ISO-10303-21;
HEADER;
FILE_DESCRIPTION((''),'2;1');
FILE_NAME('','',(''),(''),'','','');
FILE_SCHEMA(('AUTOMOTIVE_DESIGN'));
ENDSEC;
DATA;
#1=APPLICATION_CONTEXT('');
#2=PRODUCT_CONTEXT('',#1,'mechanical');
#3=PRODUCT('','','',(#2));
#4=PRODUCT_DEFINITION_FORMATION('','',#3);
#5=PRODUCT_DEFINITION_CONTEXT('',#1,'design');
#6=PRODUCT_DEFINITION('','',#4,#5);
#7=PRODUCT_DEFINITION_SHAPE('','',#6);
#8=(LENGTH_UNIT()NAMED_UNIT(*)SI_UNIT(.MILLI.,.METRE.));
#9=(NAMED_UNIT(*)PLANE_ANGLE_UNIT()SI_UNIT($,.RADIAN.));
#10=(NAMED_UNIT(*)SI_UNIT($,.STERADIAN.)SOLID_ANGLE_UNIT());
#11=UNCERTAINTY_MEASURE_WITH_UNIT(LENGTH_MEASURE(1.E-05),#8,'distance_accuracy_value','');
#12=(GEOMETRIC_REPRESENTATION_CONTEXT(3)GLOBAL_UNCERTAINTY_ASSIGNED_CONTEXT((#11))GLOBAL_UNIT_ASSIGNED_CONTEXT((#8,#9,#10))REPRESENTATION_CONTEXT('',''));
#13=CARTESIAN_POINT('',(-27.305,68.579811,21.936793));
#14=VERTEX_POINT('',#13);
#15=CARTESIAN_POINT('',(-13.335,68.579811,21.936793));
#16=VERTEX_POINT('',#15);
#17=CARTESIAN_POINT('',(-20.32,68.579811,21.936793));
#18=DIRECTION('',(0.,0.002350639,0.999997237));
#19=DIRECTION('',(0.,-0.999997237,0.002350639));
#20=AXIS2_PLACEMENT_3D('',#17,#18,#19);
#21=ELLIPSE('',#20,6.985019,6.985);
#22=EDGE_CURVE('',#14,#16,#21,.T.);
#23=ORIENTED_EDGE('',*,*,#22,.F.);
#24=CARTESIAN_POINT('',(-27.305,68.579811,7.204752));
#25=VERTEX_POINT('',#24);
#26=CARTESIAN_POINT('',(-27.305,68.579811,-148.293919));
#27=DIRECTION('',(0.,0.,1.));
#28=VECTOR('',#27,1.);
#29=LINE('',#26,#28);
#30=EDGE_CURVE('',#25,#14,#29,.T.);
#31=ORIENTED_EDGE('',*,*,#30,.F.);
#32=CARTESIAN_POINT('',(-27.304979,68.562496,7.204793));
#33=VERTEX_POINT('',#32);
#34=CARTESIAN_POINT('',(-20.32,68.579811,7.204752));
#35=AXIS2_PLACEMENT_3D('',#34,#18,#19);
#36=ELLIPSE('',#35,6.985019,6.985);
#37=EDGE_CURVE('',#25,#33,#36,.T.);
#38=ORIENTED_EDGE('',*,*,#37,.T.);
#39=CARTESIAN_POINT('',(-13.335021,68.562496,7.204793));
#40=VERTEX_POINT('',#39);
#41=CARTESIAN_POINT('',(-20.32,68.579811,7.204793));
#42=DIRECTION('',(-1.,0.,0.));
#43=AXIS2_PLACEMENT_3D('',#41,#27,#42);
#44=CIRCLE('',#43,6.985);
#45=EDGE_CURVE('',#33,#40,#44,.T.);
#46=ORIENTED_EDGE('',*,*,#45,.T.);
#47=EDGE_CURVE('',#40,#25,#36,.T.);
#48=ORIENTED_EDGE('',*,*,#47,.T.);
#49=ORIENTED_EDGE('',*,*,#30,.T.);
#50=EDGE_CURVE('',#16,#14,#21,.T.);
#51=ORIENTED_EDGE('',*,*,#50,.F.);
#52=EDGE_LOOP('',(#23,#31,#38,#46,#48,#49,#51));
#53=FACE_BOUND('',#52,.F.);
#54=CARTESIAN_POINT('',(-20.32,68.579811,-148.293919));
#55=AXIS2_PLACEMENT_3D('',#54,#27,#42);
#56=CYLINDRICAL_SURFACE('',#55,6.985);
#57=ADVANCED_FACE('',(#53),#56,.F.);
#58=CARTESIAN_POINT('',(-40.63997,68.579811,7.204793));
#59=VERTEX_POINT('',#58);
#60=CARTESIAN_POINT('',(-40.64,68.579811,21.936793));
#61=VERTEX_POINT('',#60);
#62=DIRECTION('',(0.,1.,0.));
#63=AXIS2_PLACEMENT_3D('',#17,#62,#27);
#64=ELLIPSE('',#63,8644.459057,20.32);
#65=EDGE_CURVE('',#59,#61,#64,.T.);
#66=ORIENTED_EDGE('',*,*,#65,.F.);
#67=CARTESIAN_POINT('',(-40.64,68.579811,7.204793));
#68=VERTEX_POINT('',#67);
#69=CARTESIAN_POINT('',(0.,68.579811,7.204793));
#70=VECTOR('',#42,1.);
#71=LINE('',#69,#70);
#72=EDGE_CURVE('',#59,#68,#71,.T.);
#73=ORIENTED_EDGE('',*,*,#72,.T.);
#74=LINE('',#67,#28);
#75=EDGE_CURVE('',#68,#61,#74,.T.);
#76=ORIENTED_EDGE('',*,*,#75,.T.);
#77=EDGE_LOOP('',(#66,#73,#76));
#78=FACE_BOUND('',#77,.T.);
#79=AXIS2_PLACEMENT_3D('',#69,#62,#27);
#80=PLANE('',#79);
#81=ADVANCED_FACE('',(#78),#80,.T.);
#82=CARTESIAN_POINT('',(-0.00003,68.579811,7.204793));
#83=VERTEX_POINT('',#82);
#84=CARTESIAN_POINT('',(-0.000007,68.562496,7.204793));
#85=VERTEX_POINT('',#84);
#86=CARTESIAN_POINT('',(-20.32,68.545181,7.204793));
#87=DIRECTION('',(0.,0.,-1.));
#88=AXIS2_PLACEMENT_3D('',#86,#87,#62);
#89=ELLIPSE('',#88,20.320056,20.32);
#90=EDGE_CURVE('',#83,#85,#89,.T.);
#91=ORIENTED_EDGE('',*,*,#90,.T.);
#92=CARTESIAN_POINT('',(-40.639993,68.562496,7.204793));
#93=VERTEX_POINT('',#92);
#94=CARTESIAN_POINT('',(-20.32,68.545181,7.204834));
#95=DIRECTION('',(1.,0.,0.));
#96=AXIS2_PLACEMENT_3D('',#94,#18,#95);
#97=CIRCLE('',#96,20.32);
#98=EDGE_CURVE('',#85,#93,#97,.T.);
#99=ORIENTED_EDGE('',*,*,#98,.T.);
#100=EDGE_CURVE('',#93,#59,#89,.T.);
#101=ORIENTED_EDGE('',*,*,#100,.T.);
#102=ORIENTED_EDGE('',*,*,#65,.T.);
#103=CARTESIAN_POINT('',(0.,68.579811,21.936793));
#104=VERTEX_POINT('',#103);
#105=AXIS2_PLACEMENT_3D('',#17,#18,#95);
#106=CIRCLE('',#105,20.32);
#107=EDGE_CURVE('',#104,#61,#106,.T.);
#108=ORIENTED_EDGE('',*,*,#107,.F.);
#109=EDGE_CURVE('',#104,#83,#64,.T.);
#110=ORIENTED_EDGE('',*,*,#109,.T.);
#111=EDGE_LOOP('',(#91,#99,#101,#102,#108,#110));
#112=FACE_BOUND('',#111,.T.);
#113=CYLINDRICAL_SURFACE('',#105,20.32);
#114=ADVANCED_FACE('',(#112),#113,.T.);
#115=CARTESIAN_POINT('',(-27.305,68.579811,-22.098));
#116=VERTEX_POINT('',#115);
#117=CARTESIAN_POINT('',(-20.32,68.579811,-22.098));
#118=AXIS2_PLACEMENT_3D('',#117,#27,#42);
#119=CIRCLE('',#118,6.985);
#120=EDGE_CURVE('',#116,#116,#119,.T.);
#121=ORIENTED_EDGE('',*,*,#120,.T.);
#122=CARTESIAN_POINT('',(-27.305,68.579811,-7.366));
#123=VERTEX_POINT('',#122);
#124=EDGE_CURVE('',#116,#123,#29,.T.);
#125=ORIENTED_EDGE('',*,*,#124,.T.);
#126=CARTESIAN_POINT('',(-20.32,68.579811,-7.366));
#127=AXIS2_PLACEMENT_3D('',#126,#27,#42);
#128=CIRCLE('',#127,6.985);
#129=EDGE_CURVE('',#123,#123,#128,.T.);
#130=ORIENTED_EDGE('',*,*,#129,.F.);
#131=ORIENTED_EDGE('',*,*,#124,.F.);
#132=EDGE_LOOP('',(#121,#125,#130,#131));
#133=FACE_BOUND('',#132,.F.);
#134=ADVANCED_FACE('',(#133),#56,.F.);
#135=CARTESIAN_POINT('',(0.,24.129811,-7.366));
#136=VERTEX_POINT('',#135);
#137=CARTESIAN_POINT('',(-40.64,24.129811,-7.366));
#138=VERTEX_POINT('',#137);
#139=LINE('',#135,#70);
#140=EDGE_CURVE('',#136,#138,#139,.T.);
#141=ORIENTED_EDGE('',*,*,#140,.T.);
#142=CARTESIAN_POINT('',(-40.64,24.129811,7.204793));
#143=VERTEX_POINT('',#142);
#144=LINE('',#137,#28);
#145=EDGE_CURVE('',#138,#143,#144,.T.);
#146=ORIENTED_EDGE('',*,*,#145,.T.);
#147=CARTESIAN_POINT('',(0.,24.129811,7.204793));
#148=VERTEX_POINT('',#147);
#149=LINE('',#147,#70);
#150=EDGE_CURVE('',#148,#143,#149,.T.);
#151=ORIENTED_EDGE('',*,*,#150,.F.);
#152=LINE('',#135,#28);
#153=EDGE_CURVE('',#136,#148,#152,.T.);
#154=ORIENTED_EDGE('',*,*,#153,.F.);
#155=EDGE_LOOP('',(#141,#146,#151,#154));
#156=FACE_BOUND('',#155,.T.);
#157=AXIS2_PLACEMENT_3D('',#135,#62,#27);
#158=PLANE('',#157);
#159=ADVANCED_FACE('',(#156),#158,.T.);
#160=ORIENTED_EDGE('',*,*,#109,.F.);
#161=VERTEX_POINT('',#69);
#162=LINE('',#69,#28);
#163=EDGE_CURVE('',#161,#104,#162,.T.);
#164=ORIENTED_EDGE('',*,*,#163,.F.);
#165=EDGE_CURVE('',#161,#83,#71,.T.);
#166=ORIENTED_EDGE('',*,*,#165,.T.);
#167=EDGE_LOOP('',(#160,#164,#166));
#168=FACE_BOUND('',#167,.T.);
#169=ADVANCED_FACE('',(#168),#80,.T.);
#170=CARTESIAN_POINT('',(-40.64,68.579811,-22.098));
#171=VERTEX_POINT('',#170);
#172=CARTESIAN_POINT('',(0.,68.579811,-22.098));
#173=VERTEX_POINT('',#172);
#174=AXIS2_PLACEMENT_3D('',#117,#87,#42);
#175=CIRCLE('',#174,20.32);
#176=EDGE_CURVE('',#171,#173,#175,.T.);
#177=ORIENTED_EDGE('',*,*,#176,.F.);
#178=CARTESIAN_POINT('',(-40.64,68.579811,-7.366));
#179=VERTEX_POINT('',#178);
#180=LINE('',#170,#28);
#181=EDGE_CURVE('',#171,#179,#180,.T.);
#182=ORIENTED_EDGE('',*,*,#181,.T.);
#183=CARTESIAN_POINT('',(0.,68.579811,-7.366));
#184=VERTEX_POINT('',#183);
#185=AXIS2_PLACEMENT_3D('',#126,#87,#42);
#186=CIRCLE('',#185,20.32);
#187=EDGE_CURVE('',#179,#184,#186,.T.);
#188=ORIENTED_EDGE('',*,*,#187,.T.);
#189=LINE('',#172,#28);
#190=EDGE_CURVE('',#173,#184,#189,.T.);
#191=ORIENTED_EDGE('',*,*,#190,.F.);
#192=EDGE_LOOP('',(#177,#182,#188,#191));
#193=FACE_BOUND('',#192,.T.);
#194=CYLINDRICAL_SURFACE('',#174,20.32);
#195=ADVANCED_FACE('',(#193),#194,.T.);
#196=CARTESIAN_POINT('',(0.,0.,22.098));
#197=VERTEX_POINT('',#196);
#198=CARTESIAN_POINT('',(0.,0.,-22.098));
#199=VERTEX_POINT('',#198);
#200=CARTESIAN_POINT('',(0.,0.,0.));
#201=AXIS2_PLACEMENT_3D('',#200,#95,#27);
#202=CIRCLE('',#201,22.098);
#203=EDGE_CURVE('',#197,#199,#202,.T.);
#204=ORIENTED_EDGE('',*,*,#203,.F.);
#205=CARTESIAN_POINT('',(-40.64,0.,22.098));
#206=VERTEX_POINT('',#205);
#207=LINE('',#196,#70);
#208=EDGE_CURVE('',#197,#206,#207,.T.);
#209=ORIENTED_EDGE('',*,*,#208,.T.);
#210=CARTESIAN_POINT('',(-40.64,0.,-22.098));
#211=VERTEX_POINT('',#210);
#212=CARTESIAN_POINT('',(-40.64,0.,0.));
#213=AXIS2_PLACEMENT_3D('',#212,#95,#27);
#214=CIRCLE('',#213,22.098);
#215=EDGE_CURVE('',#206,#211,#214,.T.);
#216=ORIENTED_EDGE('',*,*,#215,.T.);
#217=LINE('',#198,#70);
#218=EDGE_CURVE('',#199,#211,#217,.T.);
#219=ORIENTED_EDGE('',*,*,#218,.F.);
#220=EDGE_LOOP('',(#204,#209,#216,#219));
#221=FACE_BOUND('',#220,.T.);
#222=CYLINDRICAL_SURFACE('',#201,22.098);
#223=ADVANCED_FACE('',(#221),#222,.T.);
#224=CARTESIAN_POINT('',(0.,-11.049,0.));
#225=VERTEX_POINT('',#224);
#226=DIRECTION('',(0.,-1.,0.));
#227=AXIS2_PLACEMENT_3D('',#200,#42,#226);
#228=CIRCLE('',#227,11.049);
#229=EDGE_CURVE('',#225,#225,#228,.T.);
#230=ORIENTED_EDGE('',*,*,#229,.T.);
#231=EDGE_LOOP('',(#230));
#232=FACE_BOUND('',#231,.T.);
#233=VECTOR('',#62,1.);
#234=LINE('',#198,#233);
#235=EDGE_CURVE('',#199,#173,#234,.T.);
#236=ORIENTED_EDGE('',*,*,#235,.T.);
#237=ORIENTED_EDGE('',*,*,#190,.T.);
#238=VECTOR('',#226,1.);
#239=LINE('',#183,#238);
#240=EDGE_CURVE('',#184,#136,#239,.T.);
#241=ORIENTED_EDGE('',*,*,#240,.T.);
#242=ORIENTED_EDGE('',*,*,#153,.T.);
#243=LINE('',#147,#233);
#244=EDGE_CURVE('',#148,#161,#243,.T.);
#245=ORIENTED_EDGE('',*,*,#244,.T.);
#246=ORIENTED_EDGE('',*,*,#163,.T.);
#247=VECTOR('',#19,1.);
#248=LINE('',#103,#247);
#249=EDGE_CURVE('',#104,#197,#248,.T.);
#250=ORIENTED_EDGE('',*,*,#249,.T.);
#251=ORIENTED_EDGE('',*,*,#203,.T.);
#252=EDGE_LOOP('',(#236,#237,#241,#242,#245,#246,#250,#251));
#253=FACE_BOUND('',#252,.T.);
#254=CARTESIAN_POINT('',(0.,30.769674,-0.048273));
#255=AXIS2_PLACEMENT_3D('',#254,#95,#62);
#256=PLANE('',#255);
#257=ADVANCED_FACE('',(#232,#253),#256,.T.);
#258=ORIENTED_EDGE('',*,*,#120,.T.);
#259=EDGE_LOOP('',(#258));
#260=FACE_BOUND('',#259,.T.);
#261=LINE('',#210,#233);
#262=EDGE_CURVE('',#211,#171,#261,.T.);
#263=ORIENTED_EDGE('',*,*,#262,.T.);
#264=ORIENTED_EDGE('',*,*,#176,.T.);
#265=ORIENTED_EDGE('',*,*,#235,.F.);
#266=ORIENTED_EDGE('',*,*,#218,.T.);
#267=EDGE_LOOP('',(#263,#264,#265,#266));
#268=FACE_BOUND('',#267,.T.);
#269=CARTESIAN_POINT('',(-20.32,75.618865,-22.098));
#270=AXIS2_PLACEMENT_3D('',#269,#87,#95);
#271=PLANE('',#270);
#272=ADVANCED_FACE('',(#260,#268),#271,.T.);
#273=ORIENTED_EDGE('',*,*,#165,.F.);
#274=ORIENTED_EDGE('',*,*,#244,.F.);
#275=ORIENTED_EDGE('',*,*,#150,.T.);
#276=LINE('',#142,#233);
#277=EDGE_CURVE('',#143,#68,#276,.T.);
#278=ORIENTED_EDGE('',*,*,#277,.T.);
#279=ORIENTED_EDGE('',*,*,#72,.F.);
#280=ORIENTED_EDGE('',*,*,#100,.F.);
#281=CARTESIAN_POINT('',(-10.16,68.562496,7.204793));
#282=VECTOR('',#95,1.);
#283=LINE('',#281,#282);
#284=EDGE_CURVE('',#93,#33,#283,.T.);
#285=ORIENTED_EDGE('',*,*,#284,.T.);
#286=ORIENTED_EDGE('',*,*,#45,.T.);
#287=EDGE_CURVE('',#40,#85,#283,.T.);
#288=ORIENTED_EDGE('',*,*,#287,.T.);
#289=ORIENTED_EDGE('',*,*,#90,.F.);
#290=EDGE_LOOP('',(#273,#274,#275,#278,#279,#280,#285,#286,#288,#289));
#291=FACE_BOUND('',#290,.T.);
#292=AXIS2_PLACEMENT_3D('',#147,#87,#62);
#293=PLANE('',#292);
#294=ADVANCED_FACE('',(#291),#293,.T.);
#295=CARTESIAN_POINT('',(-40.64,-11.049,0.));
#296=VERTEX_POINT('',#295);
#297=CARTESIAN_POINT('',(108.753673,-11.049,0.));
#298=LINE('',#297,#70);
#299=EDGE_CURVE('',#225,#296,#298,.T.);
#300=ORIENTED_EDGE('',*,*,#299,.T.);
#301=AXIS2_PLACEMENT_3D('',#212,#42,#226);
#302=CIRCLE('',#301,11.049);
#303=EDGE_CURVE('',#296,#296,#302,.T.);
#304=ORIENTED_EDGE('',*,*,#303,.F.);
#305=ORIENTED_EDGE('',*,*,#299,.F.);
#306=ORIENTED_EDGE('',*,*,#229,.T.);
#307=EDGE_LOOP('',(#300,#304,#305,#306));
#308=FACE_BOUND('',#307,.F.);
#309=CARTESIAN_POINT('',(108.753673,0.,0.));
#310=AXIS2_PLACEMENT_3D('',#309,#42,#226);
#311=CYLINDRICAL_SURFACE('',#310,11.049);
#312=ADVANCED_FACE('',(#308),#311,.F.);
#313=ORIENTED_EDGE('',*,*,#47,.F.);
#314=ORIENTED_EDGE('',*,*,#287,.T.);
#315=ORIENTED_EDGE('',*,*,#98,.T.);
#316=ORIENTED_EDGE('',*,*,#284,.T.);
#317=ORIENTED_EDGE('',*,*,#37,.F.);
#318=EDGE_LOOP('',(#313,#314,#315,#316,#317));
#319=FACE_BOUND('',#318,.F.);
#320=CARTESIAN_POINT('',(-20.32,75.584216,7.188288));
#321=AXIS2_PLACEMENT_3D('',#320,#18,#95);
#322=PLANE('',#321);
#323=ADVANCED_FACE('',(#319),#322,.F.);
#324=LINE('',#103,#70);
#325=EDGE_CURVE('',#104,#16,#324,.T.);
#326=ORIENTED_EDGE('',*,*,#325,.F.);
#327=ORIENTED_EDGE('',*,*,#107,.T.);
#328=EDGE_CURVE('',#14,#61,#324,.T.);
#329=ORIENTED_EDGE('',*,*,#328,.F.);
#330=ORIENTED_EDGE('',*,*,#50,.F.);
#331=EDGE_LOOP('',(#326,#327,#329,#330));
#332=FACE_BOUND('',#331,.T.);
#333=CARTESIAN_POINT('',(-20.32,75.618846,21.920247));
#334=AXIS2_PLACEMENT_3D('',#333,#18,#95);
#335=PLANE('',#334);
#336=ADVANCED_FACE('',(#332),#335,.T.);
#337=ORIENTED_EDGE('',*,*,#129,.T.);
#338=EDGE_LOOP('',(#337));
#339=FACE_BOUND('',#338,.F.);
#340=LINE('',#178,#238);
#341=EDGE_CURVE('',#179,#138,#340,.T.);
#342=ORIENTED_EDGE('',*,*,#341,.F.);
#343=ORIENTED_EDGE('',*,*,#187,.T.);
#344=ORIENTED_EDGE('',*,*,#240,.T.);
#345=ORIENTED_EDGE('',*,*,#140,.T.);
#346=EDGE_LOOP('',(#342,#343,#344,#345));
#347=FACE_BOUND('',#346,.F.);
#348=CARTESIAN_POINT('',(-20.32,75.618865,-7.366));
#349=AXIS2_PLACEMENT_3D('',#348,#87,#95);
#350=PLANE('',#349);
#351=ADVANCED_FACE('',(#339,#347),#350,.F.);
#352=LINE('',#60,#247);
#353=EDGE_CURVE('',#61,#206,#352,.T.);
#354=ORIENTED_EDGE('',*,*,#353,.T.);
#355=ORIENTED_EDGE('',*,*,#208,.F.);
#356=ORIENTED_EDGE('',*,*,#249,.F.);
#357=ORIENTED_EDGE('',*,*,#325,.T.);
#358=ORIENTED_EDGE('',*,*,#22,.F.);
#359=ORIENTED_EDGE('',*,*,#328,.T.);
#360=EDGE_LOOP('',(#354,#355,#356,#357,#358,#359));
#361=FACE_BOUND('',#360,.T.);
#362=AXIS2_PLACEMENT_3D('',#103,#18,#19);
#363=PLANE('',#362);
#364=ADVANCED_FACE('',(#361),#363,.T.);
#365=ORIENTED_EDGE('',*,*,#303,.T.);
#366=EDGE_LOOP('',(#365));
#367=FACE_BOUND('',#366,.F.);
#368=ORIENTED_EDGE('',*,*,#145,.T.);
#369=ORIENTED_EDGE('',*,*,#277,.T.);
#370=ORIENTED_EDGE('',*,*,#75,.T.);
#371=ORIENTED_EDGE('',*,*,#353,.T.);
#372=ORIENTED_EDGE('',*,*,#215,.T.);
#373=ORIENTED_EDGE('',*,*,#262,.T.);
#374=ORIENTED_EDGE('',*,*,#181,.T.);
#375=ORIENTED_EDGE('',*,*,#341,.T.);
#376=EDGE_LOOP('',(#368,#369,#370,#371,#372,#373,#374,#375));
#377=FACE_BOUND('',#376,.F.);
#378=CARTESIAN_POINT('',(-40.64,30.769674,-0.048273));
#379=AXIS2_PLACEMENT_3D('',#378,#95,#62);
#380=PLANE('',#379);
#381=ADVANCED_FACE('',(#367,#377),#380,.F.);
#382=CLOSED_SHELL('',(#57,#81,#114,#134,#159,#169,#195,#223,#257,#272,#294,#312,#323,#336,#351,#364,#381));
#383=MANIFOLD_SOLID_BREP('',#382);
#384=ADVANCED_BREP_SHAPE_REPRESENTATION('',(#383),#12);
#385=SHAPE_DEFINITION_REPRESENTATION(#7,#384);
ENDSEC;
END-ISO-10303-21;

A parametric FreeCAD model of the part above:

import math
import FreeCAD as App
import Part
import Sketcher

V = App.Vector
Q = App.Units.Quantity

doc = App.newDocument("Part")
body = doc.addObject("PartDesign::Body", "Body")

sketch1 = body.newObject("Sketcher::SketchObject", "Sketch")
sketch1.AttachmentSupport = (doc.getObject("YZ_Plane"), [""])
sketch1.MapMode = "FlatFace"
sketch1.addGeometry([
    Part.LineSegment(V(69, 22, 0), V(0, 22, 0)),
    Part.ArcOfCircle(Part.Circle(V(0, 0, 0), V(0, 0, 1), 22), math.radians(90), math.radians(270)),
    Part.LineSegment(V(0, -22, 0), V(69, -22, 0)),
    Part.LineSegment(V(69, -22, 0), V(69, -7, 0)),
    Part.LineSegment(V(69, -7, 0), V(24, -7, 0)),
    Part.LineSegment(V(24, -7, 0), V(24, 7, 0)),
    Part.LineSegment(V(24, 7, 0), V(69, 7, 0)),
    Part.LineSegment(V(69, 7, 0), V(69, 22, 0)),
], False)
sketch1.addConstraint([
    Sketcher.Constraint("Coincident", 0, 2, 1, 1),
    Sketcher.Constraint("Tangent", 1, 2, 2, 1),
    Sketcher.Constraint("Coincident", 2, 2, 3, 1),
    Sketcher.Constraint("Coincident", 3, 2, 4, 1),
    Sketcher.Constraint("Coincident", 4, 2, 5, 1),
    Sketcher.Constraint("Coincident", 5, 2, 6, 1),
    Sketcher.Constraint("Coincident", 6, 2, 7, 1),
    Sketcher.Constraint("Coincident", 7, 2, 0, 1),
    Sketcher.Constraint("Horizontal", 2),
    Sketcher.Constraint("Vertical", 3),
    Sketcher.Constraint("Horizontal", 4),
    Sketcher.Constraint("Vertical", 5),
    Sketcher.Constraint("Horizontal", 6),
    Sketcher.Constraint("Vertical", 7),
    Sketcher.Constraint("Coincident", 1, 3, -1, 1),
    Sketcher.Constraint("PointOnObject", 0, 2, -2),
    Sketcher.Constraint("Vertical", 3, 2, 6, 2),
    Sketcher.Constraint("Equal", 3, 7),
    Sketcher.Constraint("Radius", 1, Q("0.87 in")),
    Sketcher.Constraint("Distance", 0, Q("2.7 in")),
    Sketcher.Constraint("DistanceX", 4, 2, 4, 1, Q("1.75 in")),
    Sketcher.Constraint("DistanceY", 3, 1, 3, 2, Q("0.58 in")),
    Sketcher.Constraint("DistanceY", 5, 1, 5, 2, Q("14.570793 mm")),
])
pad1 = body.newObject("PartDesign::Pad", "Pad")
pad1.Profile = sketch1
pad1.Length = Q("1.6 in")
pad1.Reversed = True

sketch2 = body.newObject("Sketcher::SketchObject", "Sketch001")
sketch2.AttachmentSupport = (doc.getObject("YZ_Plane"), [""])
sketch2.MapMode = "FlatFace"
sketch2.addGeometry(Part.Circle(V(0, 0, 0), V(0, 0, 1), 11), False)
sketch2.addConstraint([
    Sketcher.Constraint("Coincident", 0, 3, -1, 1),
    Sketcher.Constraint("Diameter", 0, Q("0.87 in")),
])
doc.recompute()
hole = body.newObject("PartDesign::Hole", "Hole")
hole.Profile = sketch2
hole.ThreadType = "None"
hole.Diameter = Q("0.87 in")
hole.DepthType = "ThroughAll"

sketch3 = body.newObject("Sketcher::SketchObject", "Sketch002")
sketch3.Placement = App.Placement(V(0, 0.051944, 22.097878), App.Rotation(V(1, 0, 0), V(0, 0.999997237, -0.002350639), V(0, 0.002350639, 0.999997237), "ZXY"))
sketch3.addGeometry([
    Part.LineSegment(V(-41, 69, 0), V(0, 69, 0)),
    Part.ArcOfCircle(Part.Circle(V(-20, 69, 0), V(0, 0, 1), 20), math.radians(0), math.radians(180)),
], False)
sketch3.addConstraint([
    Sketcher.Constraint("Coincident", 0, 1, 1, 2),
    Sketcher.Constraint("Coincident", 1, 1, 0, 2),
    Sketcher.Constraint("Horizontal", 0),
    Sketcher.Constraint("PointOnObject", 1, 1, -2),
    Sketcher.Constraint("Horizontal", 1, 3, 0, 1),
    Sketcher.Constraint("Radius", 1, Q("0.8 in")),
    Sketcher.Constraint("DistanceY", -1, 1, 1, 3, Q("68.528056 mm")),
])
pad2 = body.newObject("PartDesign::Pad", "Pad001")
pad2.Profile = sketch3
pad2.Length = Q("0.58 in")
pad2.Reversed = True

sketch4 = body.newObject("Sketcher::SketchObject", "Sketch003")
sketch4.AttachmentSupport = (doc.getObject("XY_Plane"), [""])
sketch4.MapMode = "FlatFace"
sketch4.AttachmentOffset = App.Placement(V(0, 0, -0.87 * 25.4), App.Rotation())
sketch4.addGeometry([
    Part.ArcOfCircle(Part.Circle(V(-20, 69, 0), V(0, 0, 1), 20), math.radians(0), math.radians(180)),
    Part.LineSegment(V(0, 69, 0), V(-41, 69, 0)),
], False)
sketch4.addConstraint([
    Sketcher.Constraint("Coincident", 0, 1, 1, 1),
    Sketcher.Constraint("Coincident", 1, 2, 0, 2),
    Sketcher.Constraint("Horizontal", 1),
    Sketcher.Constraint("PointOnObject", 0, 1, -2),
    Sketcher.Constraint("Radius", 0, Q("0.8 in")),
    Sketcher.Constraint("DistanceY", -1, 1, 0, 3, Q("68.579811 mm")),
    Sketcher.Constraint("DistanceY", -1, 1, 0, 1, Q("68.579811 mm")),
])
pad3 = body.newObject("PartDesign::Pad", "Pad002")
pad3.Profile = sketch4
pad3.Length = Q("0.58 in")

sketch5 = body.newObject("Sketcher::SketchObject", "Sketch004")
sketch5.AttachmentSupport = (doc.getObject("XY_Plane"), [""])
sketch5.MapMode = "FlatFace"
sketch5.AttachmentOffset = App.Placement(V(0, 0, -0.87 * 25.4), App.Rotation())
sketch5.addGeometry(Part.Circle(V(-20, 69, 0), V(0, 0, 1), 7), False)
sketch5.addConstraint([
    Sketcher.Constraint("Diameter", 0, Q("0.55 in")),
    Sketcher.Constraint("DistanceX", 0, 3, -1, 1, Q("0.8 in")),
    Sketcher.Constraint("DistanceY", -1, 1, 0, 3, Q("68.579811 mm")),
])
doc.recompute()
hole2 = body.newObject("PartDesign::Hole", "Hole001")
hole2.Profile = sketch5
hole2.ThreadType = "None"
hole2.Diameter = Q("0.55 in")
hole2.DepthType = "ThroughAll"
hole2.Reversed = True

doc.recompute()
